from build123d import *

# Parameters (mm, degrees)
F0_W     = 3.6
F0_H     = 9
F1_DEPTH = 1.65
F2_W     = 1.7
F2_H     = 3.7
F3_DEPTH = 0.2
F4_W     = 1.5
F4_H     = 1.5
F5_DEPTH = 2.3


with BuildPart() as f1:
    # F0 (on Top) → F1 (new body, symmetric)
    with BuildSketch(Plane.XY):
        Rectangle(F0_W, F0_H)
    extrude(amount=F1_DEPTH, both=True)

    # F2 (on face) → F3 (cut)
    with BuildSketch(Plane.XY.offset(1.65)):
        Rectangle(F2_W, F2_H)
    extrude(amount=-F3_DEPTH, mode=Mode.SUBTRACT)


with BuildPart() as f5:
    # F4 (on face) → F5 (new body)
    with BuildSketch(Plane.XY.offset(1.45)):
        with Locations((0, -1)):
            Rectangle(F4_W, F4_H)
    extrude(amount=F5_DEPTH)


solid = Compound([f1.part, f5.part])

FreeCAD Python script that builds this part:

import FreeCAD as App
import Part
import Sketcher

V = App.Vector


def add_polygon(sketch, points):
    """Adds a closed chain of lines whose ends are joined by coincident constraints."""
    first, n = sketch.GeometryCount, len(points)
    for a, b in zip(points, points[1:] + points[:1]):
        sketch.addGeometry(Part.LineSegment(App.Vector(*a, 0), App.Vector(*b, 0)), False)
    for i in range(n):
        sketch.addConstraint(Sketcher.Constraint("Coincident", first + i, 2, first + (i + 1) % n, 1))

doc = App.newDocument("Part")
body = doc.addObject("PartDesign::Body", "Body")

sketch1 = body.newObject("Sketcher::SketchObject", "Sketch")
sketch1.AttachmentSupport = (doc.getObject("XY_Plane"), [""])
sketch1.MapMode = "FlatFace"
add_polygon(sketch1, [(-1.8, 4.5), (-1.8, -4.5), (1.8, -4.5), (1.8, 4.5)])
sketch1.addConstraint([
    Sketcher.Constraint("Vertical", 0),
    Sketcher.Constraint("Horizontal", 1),
    Sketcher.Constraint("Vertical", 2),
    Sketcher.Constraint("Horizontal", 3),
    Sketcher.Constraint("Symmetric", 0, 2, 2, 2, -1, 1),
    Sketcher.Constraint("DistanceY", 0, 2, 0, 1, 9.0),
    Sketcher.Constraint("DistanceX", 1, 1, 1, 2, 3.6),
])
pad1 = body.newObject("PartDesign::Pad", "Pad")
pad1.Profile = sketch1
pad1.Length = 3.3
pad1.Midplane = True

sketch2 = body.newObject("Sketcher::SketchObject", "Sketch001")
sketch2.AttachmentSupport = (doc.getObject("XY_Plane"), [""])
sketch2.MapMode = "FlatFace"
sketch2.AttachmentOffset = App.Placement(V(0, 0, 1.65), App.Rotation())
add_polygon(sketch2, [(-0.85, 1.85), (-0.85, -1.85), (0.85, -1.85), (0.85, 1.85)])
sketch2.addConstraint([
    Sketcher.Constraint("Vertical", 0),
    Sketcher.Constraint("Horizontal", 1),
    Sketcher.Constraint("Vertical", 2),
    Sketcher.Constraint("Horizontal", 3),
    Sketcher.Constraint("Symmetric", 0, 2, 2, 2, -1, 1),
    Sketcher.Constraint("DistanceX", 1, 1, 1, 2, 1.7),
    Sketcher.Constraint("DistanceY", 0, 2, 0, 1, 3.7),
])
pocket1 = body.newObject("PartDesign::Pocket", "Pocket")
pocket1.Profile = sketch2
pocket1.Length = 0.2
body2 = doc.addObject("PartDesign::Body", "Body001")

sketch3 = body2.newObject("Sketcher::SketchObject", "Sketch002")
sketch3.AttachmentSupport = (doc.getObject("XY_Plane001"), [""])
sketch3.MapMode = "FlatFace"
sketch3.AttachmentOffset = App.Placement(V(0, 0, 1.45), App.Rotation())
add_polygon(sketch3, [(-0.75, -0.25), (-0.75, -1.75), (0.75, -1.75), (0.75, -0.25)])
sketch3.addConstraint([
    Sketcher.Constraint("Vertical", 0),
    Sketcher.Constraint("Horizontal", 1),
    Sketcher.Constraint("Vertical", 2),
    Sketcher.Constraint("Horizontal", 3),
    Sketcher.Constraint("Equal", 3, 0),
    Sketcher.Constraint("DistanceX", 1, 1, 1, 2, 1.5),
    Sketcher.Constraint("DistanceX", 0, 2, -1, 1, 0.75),
    Sketcher.Constraint("DistanceY", 0, 2, -1, 1, 1.75),
])
pad2 = body2.newObject("PartDesign::Pad", "Pad001")
pad2.Profile = sketch3
pad2.Length = 2.3

doc.recompute()
